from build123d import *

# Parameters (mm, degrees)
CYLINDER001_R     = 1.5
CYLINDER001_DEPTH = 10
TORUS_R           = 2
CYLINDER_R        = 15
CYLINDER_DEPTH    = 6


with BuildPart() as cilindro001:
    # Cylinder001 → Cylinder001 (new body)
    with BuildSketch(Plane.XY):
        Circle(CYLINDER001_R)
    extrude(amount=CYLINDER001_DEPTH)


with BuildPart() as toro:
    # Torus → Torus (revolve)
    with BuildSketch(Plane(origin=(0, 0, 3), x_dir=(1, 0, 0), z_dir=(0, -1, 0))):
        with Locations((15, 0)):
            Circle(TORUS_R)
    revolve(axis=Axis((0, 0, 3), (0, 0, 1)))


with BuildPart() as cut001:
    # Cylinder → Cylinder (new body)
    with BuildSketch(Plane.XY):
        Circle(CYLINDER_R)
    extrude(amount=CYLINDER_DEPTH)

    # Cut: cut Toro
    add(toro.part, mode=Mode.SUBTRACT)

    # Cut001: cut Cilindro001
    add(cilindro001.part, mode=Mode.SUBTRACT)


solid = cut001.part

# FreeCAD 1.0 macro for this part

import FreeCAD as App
import Part
import Sketcher
Q = App.Units.Quantity

doc = App.newDocument("Part")
params = doc.addObject("Spreadsheet::Sheet", "Params")
for row, (alias, value) in enumerate([
    ("sketch1_diameter", "3 mm"),
    ("pad1_length", "10 mm"),
    ("sketch2_diameter", "4 mm"),
    ("revolution_angle", "360 deg"),
    ("sketch3_diameter", "30 mm"),
    ("pad2_length", "6 mm"),
], start=1):
    params.set(f"A{row}", alias)
    params.set(f"B{row}", "=" + value)
    params.setAlias(f"B{row}", alias)

body = doc.addObject("PartDesign::Body", "Body")

# Sketch on XY plane
sketch1 = body.newObject("Sketcher::SketchObject", "Sketch")
sketch1.AttachmentSupport = (doc.getObject("XY_Plane"), [""])
sketch1.MapMode = "FlatFace"
sketch1.addGeometry(Part.Circle(App.Vector(0, 0, 0), App.Vector(0, 0, 1), 1.5), False)
sketch1.addConstraint([
    Sketcher.Constraint("Coincident", 0, 3, -1, 1),
    Sketcher.Constraint("Diameter", 0, Q("3 mm")),
])
sketch1.setExpression("Constraints[1]", "Params.sketch1_diameter")
pad1 = body.newObject("PartDesign::Pad", "Pad")
pad1.Profile = sketch1
pad1.setExpression("Length", "Params.pad1_length")
body2 = doc.addObject("PartDesign::Body", "Body001")

# Sketch on XZ plane
sketch2 = body2.newObject("Sketcher::SketchObject", "Sketch001")
sketch2.AttachmentSupport = (doc.getObject("XZ_Plane001"), [""])
sketch2.MapMode = "FlatFace"
sketch2.addGeometry(Part.Circle(App.Vector(15, 3, 0), App.Vector(0, 0, 1), 2), False)
sketch2.addConstraint([
    Sketcher.Constraint("Diameter", 0, Q("4 mm")),
    Sketcher.Constraint("DistanceX", -1, 1, 0, 3, Q("15 mm")),
    Sketcher.Constraint("DistanceY", -1, 1, 0, 3, Q("3 mm")),
])
sketch2.setExpression("Constraints[0]", "Params.sketch2_diameter")
revolution = body2.newObject("PartDesign::Revolution", "Revolution")
revolution.Profile = sketch2
revolution.ReferenceAxis = (sketch2, ["V_Axis"])
revolution.setExpression("Angle", "Params.revolution_angle")
body3 = doc.addObject("PartDesign::Body", "Body002")

# Sketch on XY plane
sketch3 = body3.newObject("Sketcher::SketchObject", "Sketch002")
sketch3.AttachmentSupport = (doc.getObject("XY_Plane002"), [""])
sketch3.MapMode = "FlatFace"
sketch3.addGeometry(Part.Circle(App.Vector(0, 0, 0), App.Vector(0, 0, 1), 15), False)
sketch3.addConstraint([
    Sketcher.Constraint("Coincident", 0, 3, -1, 1),
    Sketcher.Constraint("Diameter", 0, Q("30 mm")),
])
sketch3.setExpression("Constraints[1]", "Params.sketch3_diameter")
pad2 = body3.newObject("PartDesign::Pad", "Pad001")
pad2.Profile = sketch3
pad2.setExpression("Length", "Params.pad2_length")
doc.recompute()

boolean = body3.newObject("PartDesign::Boolean", "Boolean")
boolean.Type = "Cut"
boolean.addObjects([body2])
doc.recompute()

boolean2 = body3.newObject("PartDesign::Boolean", "Boolean001")
boolean2.Type = "Cut"
boolean2.addObjects([body])

doc.recompute()
